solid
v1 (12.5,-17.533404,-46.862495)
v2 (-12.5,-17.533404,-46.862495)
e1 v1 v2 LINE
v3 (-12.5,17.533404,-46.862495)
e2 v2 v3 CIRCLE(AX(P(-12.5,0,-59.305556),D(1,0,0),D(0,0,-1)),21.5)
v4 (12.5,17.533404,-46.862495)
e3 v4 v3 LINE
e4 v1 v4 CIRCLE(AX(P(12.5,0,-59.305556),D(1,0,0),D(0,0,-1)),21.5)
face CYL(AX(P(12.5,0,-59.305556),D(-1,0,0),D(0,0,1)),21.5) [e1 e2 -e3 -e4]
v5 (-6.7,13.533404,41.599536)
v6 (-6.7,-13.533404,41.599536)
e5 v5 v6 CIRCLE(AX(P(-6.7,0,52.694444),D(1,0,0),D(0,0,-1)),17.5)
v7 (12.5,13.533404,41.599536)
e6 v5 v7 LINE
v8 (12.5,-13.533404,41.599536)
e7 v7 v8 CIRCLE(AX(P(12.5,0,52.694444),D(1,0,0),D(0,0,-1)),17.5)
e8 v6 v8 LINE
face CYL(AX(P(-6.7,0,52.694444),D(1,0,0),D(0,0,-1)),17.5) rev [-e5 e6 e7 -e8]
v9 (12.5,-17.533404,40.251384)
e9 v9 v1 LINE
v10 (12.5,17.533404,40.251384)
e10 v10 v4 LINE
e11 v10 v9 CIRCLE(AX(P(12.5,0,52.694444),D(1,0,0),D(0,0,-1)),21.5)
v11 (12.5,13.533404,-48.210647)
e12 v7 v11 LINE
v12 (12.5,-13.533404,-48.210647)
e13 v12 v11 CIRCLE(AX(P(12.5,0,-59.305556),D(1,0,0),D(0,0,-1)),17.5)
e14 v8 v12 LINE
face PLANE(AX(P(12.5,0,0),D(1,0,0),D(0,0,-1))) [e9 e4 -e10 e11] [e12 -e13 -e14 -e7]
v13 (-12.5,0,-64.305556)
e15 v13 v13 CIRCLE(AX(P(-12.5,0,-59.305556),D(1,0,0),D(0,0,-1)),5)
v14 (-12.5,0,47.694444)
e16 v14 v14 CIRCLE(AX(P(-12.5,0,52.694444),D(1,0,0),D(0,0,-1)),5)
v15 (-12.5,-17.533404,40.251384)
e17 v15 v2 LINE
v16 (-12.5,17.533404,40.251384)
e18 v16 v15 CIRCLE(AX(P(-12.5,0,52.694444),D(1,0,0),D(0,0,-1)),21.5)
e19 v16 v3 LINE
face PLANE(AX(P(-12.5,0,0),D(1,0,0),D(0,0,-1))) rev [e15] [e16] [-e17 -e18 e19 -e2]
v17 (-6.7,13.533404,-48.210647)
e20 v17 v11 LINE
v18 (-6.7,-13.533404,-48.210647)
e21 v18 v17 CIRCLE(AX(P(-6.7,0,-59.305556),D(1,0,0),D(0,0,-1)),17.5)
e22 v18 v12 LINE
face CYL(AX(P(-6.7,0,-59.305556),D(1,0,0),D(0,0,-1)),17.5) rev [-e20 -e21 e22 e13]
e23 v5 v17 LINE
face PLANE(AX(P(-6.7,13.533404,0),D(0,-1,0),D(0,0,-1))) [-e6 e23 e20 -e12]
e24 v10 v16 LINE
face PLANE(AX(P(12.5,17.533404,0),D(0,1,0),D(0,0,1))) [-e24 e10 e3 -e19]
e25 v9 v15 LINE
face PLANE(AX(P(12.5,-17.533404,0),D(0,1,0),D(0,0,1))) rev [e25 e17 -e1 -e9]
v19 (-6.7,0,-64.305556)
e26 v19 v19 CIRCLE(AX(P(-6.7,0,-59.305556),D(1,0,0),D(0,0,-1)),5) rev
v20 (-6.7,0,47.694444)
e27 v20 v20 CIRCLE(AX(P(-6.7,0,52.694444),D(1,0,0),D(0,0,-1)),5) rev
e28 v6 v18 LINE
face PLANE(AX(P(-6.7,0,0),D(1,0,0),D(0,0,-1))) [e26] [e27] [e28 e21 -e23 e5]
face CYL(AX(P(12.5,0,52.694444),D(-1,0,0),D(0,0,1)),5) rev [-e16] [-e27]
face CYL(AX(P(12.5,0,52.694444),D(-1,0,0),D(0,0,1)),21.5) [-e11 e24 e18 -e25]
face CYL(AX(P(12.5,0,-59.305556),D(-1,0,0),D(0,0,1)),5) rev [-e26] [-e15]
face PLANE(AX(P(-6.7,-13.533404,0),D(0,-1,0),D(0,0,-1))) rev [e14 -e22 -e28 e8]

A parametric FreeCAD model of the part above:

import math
import FreeCAD as App
import Part
import Sketcher

V = App.Vector

doc = App.newDocument("Part")
body = doc.addObject("PartDesign::Body", "Body")

sketch1 = body.newObject("Sketcher::SketchObject", "Sketch")
sketch1.AttachmentSupport = (doc.getObject("YZ_Plane"), [""])
sketch1.MapMode = "FlatFace"
sketch1.addGeometry([
    Part.ArcOfCircle(Part.Circle(V(0, 53, 0), V(0, 0, 1), 22), math.radians(-35), math.radians(215)),
    Part.LineSegment(V(-18, 40, 0), V(-18, -47, 0)),
    Part.ArcOfCircle(Part.Circle(V(0, -59, 0), V(0, 0, 1), 22), math.radians(145), math.radians(270)),
    Part.ArcOfCircle(Part.Circle(V(0, -59, 0), V(0, 0, 1), 22), math.radians(-90), math.radians(35)),
    Part.LineSegment(V(18, -47, 0), V(18, 40, 0)),
    Part.Circle(V(0, 53, 0), V(0, 0, 1), 5),
    Part.Circle(V(0, -59, 0), V(0, 0, 1), 5),
], False)
sketch1.addConstraint([
    Sketcher.Constraint("Coincident", 0, 2, 1, 1),
    Sketcher.Constraint("Coincident", 1, 2, 2, 1),
    Sketcher.Constraint("Tangent", 2, 2, 3, 1),
    Sketcher.Constraint("Coincident", 3, 2, 4, 1),
    Sketcher.Constraint("Coincident", 4, 2, 0, 1),
    Sketcher.Constraint("Vertical", 1),
    Sketcher.Constraint("Vertical", 4),
    Sketcher.Constraint("Coincident", 5, 3, 0, 3),
    Sketcher.Constraint("Coincident", 6, 3, 2, 3),
    Sketcher.Constraint("Equal", 0, 2),
    Sketcher.Constraint("Equal", 2, 3),
    Sketcher.Constraint("Equal", 5, 6),
    Sketcher.Constraint("Symmetric", 1, 2, 3, 2, -2),
    Sketcher.Constraint("PointOnObject", 0, 3, -2),
    Sketcher.Constraint("PointOnObject", 2, 2, -2),
    Sketcher.Constraint("Diameter", 5, 10.0),
    Sketcher.Constraint("Radius", 0, 21.5),
    Sketcher.Constraint("DistanceY", 2, 3, 0, 3, 112.0),
    Sketcher.Constraint("DistanceY", 1, 2, 1, 1, 87.113879),
    Sketcher.Constraint("DistanceY", -1, 1, 0, 3, 52.694444),
])
pad1 = body.newObject("PartDesign::Pad", "Pad")
pad1.Profile = sketch1
pad1.Length = 25
pad1.Midplane = True

sketch2 = body.newObject("Sketcher::SketchObject", "Sketch001")
sketch2.AttachmentSupport = (doc.getObject("YZ_Plane"), [""])
sketch2.MapMode = "FlatFace"
sketch2.AttachmentOffset = App.Placement(V(0, 0, -6.7), App.Rotation())
sketch2.addGeometry([
    Part.ArcOfCircle(Part.Circle(V(0, 52.7, 0), V(0, 0, 1), 17.5), math.radians(-39), math.radians(219)),
    Part.LineSegment(V(-13.5, 41.6, 0), V(-13.5, -48.2, 0)),
    Part.ArcOfCircle(Part.Circle(V(0, -59.3, 0), V(0, 0, 1), 17.5), math.radians(141), math.radians(270)),
    Part.ArcOfCircle(Part.Circle(V(0, -59.3, 0), V(0, 0, 1), 17.5), math.radians(-90), math.radians(39)),
    Part.LineSegment(V(13.5, -48.2, 0), V(13.5, 41.6, 0)),
    Part.Circle(V(0, 52.7, 0), V(0, 0, 1), 5),
    Part.ArcOfCircle(Part.Circle(V(0, -59.3, 0), V(0, 0, 1), 5), math.radians(-32), math.radians(212)),
    Part.ArcOfCircle(Part.Circle(V(0, -59.3, 0), V(0, 0, 1), 5), math.radians(-90), math.radians(-32)),
    Part.ArcOfCircle(Part.Circle(V(0, -59.3, 0), V(0, 0, 1), 5), math.radians(-148), math.radians(-90)),
], False)
sketch2.addConstraint([
    Sketcher.Constraint("Coincident", 0, 2, 1, 1),
    Sketcher.Constraint("Coincident", 1, 2, 2, 1),
    Sketcher.Constraint("Tangent", 2, 2, 3, 1),
    Sketcher.Constraint("Coincident", 3, 2, 4, 1),
    Sketcher.Constraint("Coincident", 4, 2, 0, 1),
    Sketcher.Constraint("Tangent", 6, 1, 7, 2),
    Sketcher.Constraint("Tangent", 7, 1, 8, 2),
    Sketcher.Constraint("Tangent", 8, 1, 6, 2),
    Sketcher.Constraint("Vertical", 1),
    Sketcher.Constraint("Vertical", 4),
    Sketcher.Constraint("Coincident", 5, 3, 0, 3),
    Sketcher.Constraint("Coincident", 6, 3, 2, 3),
    Sketcher.Constraint("Equal", 0, 2),
    Sketcher.Constraint("Equal", 2, 3),
    Sketcher.Constraint("Equal", 5, 6),
    Sketcher.Constraint("Symmetric", 1, 2, 3, 2, -2),
    Sketcher.Constraint("PointOnObject", 0, 3, -2),
    Sketcher.Constraint("PointOnObject", 2, 2, -2),
    Sketcher.Constraint("PointOnObject", 7, 1, -2),
    Sketcher.Constraint("Horizontal", 6, 1, 8, 1),
    Sketcher.Constraint("Diameter", 5, 10.0),
    Sketcher.Constraint("Radius", 0, 17.5),
    Sketcher.Constraint("DistanceY", 2, 3, 0, 3, 112.0),
    Sketcher.Constraint("DistanceX", -1, 1, 6, 1, 4.2495),
    Sketcher.Constraint("DistanceY", 1, 2, 1, 1, 89.810184),
    Sketcher.Constraint("DistanceY", -1, 1, 0, 3, 52.694444),
])
pocket1 = body.newObject("PartDesign::Pocket", "Pocket")
pocket1.Profile = sketch2
pocket1.Length = 19.2
pocket1.Reversed = True

doc.recompute()
